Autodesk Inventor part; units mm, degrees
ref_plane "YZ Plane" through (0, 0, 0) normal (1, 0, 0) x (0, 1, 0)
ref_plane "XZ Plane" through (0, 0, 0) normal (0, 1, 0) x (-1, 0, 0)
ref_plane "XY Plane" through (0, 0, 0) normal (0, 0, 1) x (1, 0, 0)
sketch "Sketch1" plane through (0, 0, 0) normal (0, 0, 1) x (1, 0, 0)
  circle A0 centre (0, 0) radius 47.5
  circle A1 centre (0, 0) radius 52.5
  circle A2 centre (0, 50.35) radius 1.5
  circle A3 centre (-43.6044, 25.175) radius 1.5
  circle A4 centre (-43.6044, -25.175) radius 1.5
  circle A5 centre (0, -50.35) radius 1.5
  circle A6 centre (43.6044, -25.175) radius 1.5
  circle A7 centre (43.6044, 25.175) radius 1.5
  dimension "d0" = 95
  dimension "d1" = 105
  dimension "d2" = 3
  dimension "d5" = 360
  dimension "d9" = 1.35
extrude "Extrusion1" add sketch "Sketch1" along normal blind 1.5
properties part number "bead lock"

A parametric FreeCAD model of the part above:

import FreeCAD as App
import Part
import Sketcher

V = App.Vector

doc = App.newDocument("Part")
body = doc.addObject("PartDesign::Body", "Body")

# Sketch on XY plane
sketch1 = doc.addObject("Sketcher::SketchObject", "Sketch")
body.addObject(sketch1)
sketch1.AttachmentSupport = (doc.XY_Plane, [""])
sketch1.MapMode = "FlatFace"
sketch1.addGeometry([
    Part.Circle(V(0, 0, 0), V(0, 0, 1), 52.5),  # 0
    Part.Circle(V(-43.6, -25.2, 0), V(0, 0, 1), 1.5),  # 1
    Part.Circle(V(0, -50.4, 0), V(0, 0, 1), 1.5),  # 2
    Part.Circle(V(43.6, -25.2, 0), V(0, 0, 1), 1.5),  # 3
    Part.Circle(V(-43.6, 25.2, 0), V(0, 0, 1), 1.5),  # 4
    Part.Circle(V(0, 0, 0), V(0, 0, 1), 47.5),  # 5
    Part.Circle(V(43.6, 25.2, 0), V(0, 0, 1), 1.5),  # 6
    Part.Circle(V(0, 50.4, 0), V(0, 0, 1), 1.5),  # 7
], False)
sketch1.addConstraint([
    Sketcher.Constraint("Coincident", 0, 3, -1, 1),
    Sketcher.Constraint("Coincident", 5, 3, -1, 1),
    Sketcher.Constraint("Equal", 1, 2),
    Sketcher.Constraint("Equal", 2, 3),
    Sketcher.Constraint("Equal", 3, 4),
    Sketcher.Constraint("Equal", 4, 6),
    Sketcher.Constraint("Equal", 6, 7),
    Sketcher.Constraint("Symmetric", 3, 3, 4, 3, -1, 1),
    Sketcher.Constraint("Symmetric", 1, 3, 6, 3, -1, 1),
    Sketcher.Constraint("Symmetric", 2, 3, 7, 3, -1, 1),
    Sketcher.Constraint("Symmetric", 1, 3, 3, 3, -2),
    Sketcher.Constraint("PointOnObject", 2, 3, -2),
    Sketcher.Constraint("Diameter", 0, 105.0),
    Sketcher.Constraint("Diameter", 1, 3.0),
    Sketcher.Constraint("Diameter", 5, 95.0),
    Sketcher.Constraint("DistanceY", 2, 3, -1, 1, 50.35),
    Sketcher.Constraint("DistanceY", 1, 3, 4, 3, 50.35),
    Sketcher.Constraint("DistanceX", 1, 3, -1, 1, 43.6044),
])
pad1 = doc.addObject("PartDesign::Pad", "Pad")
body.addObject(pad1)
pad1.Profile = sketch1
pad1.Length = 1.5

doc.recompute()
